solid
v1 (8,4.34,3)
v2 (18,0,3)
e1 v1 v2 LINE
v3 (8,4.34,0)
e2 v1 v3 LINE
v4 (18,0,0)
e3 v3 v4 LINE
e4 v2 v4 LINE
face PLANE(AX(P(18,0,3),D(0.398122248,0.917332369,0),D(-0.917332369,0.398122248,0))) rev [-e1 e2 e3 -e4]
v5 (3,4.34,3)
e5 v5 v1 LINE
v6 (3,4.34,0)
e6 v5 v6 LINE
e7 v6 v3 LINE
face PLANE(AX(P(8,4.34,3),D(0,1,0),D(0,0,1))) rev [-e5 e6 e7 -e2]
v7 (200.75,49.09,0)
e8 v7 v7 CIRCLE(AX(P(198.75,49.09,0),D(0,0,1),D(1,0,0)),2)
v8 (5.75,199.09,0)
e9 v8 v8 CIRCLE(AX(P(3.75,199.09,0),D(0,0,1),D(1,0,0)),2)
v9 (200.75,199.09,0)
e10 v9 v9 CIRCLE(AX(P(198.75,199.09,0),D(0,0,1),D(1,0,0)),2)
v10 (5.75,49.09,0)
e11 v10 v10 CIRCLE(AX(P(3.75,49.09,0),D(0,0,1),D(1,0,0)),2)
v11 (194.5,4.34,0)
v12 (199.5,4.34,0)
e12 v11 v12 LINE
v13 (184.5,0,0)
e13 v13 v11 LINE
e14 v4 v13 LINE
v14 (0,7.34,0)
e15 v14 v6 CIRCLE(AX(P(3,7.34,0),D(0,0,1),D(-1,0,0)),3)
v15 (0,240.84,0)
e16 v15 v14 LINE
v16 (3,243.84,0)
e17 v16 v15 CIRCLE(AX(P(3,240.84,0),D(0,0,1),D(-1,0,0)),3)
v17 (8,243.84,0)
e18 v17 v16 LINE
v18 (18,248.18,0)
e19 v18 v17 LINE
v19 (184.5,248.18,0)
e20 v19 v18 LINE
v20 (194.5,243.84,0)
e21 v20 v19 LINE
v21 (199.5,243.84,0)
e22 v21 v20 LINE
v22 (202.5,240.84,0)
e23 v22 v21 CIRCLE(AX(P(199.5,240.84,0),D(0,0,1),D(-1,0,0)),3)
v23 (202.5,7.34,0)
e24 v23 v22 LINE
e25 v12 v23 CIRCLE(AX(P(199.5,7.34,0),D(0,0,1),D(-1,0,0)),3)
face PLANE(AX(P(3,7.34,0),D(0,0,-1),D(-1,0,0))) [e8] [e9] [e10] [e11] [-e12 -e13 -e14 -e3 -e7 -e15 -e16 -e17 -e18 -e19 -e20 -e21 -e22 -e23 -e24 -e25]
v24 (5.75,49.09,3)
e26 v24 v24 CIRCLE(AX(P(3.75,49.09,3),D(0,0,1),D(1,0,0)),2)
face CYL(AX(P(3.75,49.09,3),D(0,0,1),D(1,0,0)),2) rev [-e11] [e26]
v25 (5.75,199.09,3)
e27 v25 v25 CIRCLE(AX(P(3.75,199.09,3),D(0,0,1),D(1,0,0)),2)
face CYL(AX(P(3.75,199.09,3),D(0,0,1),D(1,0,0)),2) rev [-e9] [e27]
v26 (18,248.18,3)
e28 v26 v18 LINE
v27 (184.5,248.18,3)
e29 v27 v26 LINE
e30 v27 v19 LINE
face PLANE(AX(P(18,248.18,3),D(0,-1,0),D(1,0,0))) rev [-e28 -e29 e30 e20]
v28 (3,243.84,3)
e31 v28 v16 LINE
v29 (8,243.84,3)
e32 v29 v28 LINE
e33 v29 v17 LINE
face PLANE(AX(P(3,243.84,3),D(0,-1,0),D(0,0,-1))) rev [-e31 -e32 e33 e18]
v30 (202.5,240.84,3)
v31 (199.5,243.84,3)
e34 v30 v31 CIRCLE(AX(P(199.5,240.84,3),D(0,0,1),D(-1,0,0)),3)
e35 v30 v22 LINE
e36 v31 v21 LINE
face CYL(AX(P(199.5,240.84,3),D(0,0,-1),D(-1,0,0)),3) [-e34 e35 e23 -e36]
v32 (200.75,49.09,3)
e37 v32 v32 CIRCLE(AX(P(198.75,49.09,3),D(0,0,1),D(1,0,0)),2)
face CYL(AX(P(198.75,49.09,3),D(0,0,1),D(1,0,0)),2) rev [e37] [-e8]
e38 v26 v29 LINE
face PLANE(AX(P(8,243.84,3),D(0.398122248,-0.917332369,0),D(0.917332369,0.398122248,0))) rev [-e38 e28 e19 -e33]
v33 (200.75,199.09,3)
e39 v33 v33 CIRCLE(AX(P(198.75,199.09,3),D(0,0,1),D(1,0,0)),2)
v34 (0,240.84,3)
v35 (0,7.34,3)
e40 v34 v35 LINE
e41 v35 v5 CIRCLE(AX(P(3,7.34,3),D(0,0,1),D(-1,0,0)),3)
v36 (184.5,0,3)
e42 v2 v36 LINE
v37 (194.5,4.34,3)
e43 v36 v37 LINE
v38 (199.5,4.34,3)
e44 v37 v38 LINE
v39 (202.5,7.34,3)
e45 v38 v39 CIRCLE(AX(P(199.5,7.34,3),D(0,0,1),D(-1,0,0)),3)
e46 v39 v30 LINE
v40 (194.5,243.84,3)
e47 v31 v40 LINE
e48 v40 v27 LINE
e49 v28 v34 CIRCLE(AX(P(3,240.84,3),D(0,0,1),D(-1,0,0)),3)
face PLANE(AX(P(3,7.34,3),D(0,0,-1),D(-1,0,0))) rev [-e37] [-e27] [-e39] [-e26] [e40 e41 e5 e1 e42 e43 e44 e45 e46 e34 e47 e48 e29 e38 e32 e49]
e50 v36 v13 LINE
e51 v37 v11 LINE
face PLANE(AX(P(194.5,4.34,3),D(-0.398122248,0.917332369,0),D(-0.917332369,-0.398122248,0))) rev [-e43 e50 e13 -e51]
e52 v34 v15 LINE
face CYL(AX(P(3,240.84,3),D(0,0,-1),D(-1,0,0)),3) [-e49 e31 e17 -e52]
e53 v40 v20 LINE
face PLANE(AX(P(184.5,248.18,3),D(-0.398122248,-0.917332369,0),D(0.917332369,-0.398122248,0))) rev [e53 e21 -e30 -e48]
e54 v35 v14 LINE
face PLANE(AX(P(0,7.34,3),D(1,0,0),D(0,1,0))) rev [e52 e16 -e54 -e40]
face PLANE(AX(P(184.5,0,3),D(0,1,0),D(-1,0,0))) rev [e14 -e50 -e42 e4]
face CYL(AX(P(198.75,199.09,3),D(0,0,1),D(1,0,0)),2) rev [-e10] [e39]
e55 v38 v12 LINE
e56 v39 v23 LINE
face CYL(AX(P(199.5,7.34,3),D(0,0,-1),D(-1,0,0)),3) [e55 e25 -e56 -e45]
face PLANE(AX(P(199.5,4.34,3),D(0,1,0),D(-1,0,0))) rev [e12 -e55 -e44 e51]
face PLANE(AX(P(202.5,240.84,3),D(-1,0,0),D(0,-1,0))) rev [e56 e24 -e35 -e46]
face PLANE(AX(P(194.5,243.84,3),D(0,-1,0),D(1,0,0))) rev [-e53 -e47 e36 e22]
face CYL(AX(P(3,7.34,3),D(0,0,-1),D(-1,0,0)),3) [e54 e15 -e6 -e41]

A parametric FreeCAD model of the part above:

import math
import FreeCAD as App
import Part
import Sketcher

V = App.Vector

doc = App.newDocument("Part")
body = doc.addObject("PartDesign::Body", "Body")

# Sketch on XY plane
sketch1 = body.newObject("Sketcher::SketchObject", "Sketch")
sketch1.AttachmentSupport = (doc.getObject("XY_Plane"), [""])
sketch1.MapMode = "FlatFace"
sketch1.addGeometry([
    Part.LineSegment(V(0, 240.8, 0), V(0, 7.3, 0)),  # 0
    Part.ArcOfCircle(Part.Circle(V(3, 7.3, 0), V(0, 0, 1), 3), math.radians(180), math.radians(270)),  # 1
    Part.LineSegment(V(3, 4.3, 0), V(8, 4.3, 0)),  # 2
    Part.LineSegment(V(8, 4.3, 0), V(18, 0, 0)),  # 3
    Part.LineSegment(V(18, 0, 0), V(184.5, 0, 0)),  # 4
    Part.LineSegment(V(184.5, 0, 0), V(194.5, 4.3, 0)),  # 5
    Part.LineSegment(V(194.5, 4.3, 0), V(199.5, 4.3, 0)),  # 6
    Part.ArcOfCircle(Part.Circle(V(199.5, 7.3, 0), V(0, 0, 1), 3), math.radians(-90), math.radians(0)),  # 7
    Part.LineSegment(V(202.5, 7.3, 0), V(202.5, 240.8, 0)),  # 8
    Part.ArcOfCircle(Part.Circle(V(199.5, 240.8, 0), V(0, 0, 1), 3), math.radians(0), math.radians(90)),  # 9
    Part.LineSegment(V(199.5, 243.8, 0), V(194.5, 243.8, 0)),  # 10
    Part.LineSegment(V(194.5, 243.8, 0), V(184.5, 248.2, 0)),  # 11
    Part.LineSegment(V(184.5, 248.2, 0), V(18, 248.2, 0)),  # 12
    Part.LineSegment(V(18, 248.2, 0), V(8, 243.8, 0)),  # 13
    Part.LineSegment(V(8, 243.8, 0), V(3, 243.8, 0)),  # 14
    Part.ArcOfCircle(Part.Circle(V(3, 240.8, 0), V(0, 0, 1), 3), math.radians(90), math.radians(180)),  # 15
], False)
sketch1.addConstraint([
    Sketcher.Constraint("Tangent", 0, 2, 1, 1),
    Sketcher.Constraint("Tangent", 1, 2, 2, 1),
    Sketcher.Constraint("Coincident", 2, 2, 3, 1),
    Sketcher.Constraint("Coincident", 3, 2, 4, 1),
    Sketcher.Constraint("Coincident", 4, 2, 5, 1),
    Sketcher.Constraint("Coincident", 5, 2, 6, 1),
    Sketcher.Constraint("Tangent", 6, 2, 7, 1),
    Sketcher.Constraint("Tangent", 7, 2, 8, 1),
    Sketcher.Constraint("Tangent", 8, 2, 9, 1),
    Sketcher.Constraint("Tangent", 9, 2, 10, 1),
    Sketcher.Constraint("Coincident", 10, 2, 11, 1),
    Sketcher.Constraint("Coincident", 11, 2, 12, 1),
    Sketcher.Constraint("Coincident", 12, 2, 13, 1),
    Sketcher.Constraint("Coincident", 13, 2, 14, 1),
    Sketcher.Constraint("Tangent", 14, 2, 15, 1),
    Sketcher.Constraint("Tangent", 15, 2, 0, 1),
    Sketcher.Constraint("Vertical", 0),
    Sketcher.Constraint("Horizontal", 2),
    Sketcher.Constraint("Horizontal", 4),
    Sketcher.Constraint("Horizontal", 6),
    Sketcher.Constraint("Vertical", 8),
    Sketcher.Constraint("Horizontal", 10),
    Sketcher.Constraint("Horizontal", 12),
    Sketcher.Constraint("Horizontal", 14),
    Sketcher.Constraint("Equal", 1, 7),
    Sketcher.Constraint("Equal", 7, 9),
    Sketcher.Constraint("Equal", 9, 15),
    Sketcher.Constraint("PointOnObject", 0, 2, -2),
    Sketcher.Constraint("PointOnObject", 3, 2, -1),
    Sketcher.Constraint("Parallel", 3, 11),
    Sketcher.Constraint("Parallel", 5, 13),
    Sketcher.Constraint("Horizontal", 1, 3, 7, 3),
    Sketcher.Constraint("Horizontal", 9, 3, 15, 3),
    Sketcher.Constraint("Vertical", 5, 2, 10, 2),
    Sketcher.Constraint("Vertical", 4, 2, 11, 2),
    Sketcher.Constraint("Vertical", 3, 2, 12, 2),
    Sketcher.Constraint("Vertical", 2, 2, 13, 2),
    Sketcher.Constraint("Equal", 2, 6),
    Sketcher.Constraint("Radius", 1, 3.0),
    Sketcher.Constraint("DistanceX", 2, 1, 2, 2, 5.0),
    Sketcher.Constraint("DistanceX", 4, 1, 4, 2, 166.5),
    Sketcher.Constraint("DistanceY", 0, 2, 0, 1, 233.5),
    Sketcher.Constraint("DistanceX", -1, 1, 3, 2, 18.0),
    Sketcher.Constraint("DistanceY", -1, 1, 1, 3, 7.34),
])
pad1 = body.newObject("PartDesign::Pad", "Pad")
pad1.Profile = sketch1
pad1.Length = 3

# Sketch on XY plane
sketch2 = body.newObject("Sketcher::SketchObject", "Sketch001")
sketch2.AttachmentSupport = (doc.getObject("XY_Plane"), [""])
sketch2.MapMode = "FlatFace"
sketch2.AttachmentOffset = App.Placement(V(0, 0, 3), App.Rotation())
sketch2.addGeometry([
    Part.Circle(V(3.8, 199.1, 0), V(0, 0, 1), 2),
    Part.Circle(V(3.8, 49.1, 0), V(0, 0, 1), 2),
    Part.Circle(V(198.8, 49.1, 0), V(0, 0, 1), 2),
    Part.Circle(V(198.8, 199.1, 0), V(0, 0, 1), 2),
], False)
sketch2.addConstraint([
    Sketcher.Constraint("Equal", 0, 1),
    Sketcher.Constraint("Equal", 1, 2),
    Sketcher.Constraint("Equal", 2, 3),
    Sketcher.Constraint("Horizontal", 1, 3, 2, 3),
    Sketcher.Constraint("Horizontal", 0, 3, 3, 3),
    Sketcher.Constraint("Vertical", 0, 3, 1, 3),
    Sketcher.Constraint("Vertical", 2, 3, 3, 3),
    Sketcher.Constraint("Diameter", 0, 4.0),
    Sketcher.Constraint("DistanceY", 1, 3, 0, 3, 150.0),
    Sketcher.Constraint("DistanceX", 1, 3, 2, 3, 195.0),
    Sketcher.Constraint("DistanceX", -1, 1, 0, 3, 3.75),
    Sketcher.Constraint("DistanceY", -1, 1, 0, 3, 199.09),
])
doc.recompute()
hole = body.newObject("PartDesign::Hole", "Hole")
hole.Profile = sketch2
hole.ThreadType = "None"
hole.Diameter = 4
hole.DepthType = "ThroughAll"

doc.recompute()
